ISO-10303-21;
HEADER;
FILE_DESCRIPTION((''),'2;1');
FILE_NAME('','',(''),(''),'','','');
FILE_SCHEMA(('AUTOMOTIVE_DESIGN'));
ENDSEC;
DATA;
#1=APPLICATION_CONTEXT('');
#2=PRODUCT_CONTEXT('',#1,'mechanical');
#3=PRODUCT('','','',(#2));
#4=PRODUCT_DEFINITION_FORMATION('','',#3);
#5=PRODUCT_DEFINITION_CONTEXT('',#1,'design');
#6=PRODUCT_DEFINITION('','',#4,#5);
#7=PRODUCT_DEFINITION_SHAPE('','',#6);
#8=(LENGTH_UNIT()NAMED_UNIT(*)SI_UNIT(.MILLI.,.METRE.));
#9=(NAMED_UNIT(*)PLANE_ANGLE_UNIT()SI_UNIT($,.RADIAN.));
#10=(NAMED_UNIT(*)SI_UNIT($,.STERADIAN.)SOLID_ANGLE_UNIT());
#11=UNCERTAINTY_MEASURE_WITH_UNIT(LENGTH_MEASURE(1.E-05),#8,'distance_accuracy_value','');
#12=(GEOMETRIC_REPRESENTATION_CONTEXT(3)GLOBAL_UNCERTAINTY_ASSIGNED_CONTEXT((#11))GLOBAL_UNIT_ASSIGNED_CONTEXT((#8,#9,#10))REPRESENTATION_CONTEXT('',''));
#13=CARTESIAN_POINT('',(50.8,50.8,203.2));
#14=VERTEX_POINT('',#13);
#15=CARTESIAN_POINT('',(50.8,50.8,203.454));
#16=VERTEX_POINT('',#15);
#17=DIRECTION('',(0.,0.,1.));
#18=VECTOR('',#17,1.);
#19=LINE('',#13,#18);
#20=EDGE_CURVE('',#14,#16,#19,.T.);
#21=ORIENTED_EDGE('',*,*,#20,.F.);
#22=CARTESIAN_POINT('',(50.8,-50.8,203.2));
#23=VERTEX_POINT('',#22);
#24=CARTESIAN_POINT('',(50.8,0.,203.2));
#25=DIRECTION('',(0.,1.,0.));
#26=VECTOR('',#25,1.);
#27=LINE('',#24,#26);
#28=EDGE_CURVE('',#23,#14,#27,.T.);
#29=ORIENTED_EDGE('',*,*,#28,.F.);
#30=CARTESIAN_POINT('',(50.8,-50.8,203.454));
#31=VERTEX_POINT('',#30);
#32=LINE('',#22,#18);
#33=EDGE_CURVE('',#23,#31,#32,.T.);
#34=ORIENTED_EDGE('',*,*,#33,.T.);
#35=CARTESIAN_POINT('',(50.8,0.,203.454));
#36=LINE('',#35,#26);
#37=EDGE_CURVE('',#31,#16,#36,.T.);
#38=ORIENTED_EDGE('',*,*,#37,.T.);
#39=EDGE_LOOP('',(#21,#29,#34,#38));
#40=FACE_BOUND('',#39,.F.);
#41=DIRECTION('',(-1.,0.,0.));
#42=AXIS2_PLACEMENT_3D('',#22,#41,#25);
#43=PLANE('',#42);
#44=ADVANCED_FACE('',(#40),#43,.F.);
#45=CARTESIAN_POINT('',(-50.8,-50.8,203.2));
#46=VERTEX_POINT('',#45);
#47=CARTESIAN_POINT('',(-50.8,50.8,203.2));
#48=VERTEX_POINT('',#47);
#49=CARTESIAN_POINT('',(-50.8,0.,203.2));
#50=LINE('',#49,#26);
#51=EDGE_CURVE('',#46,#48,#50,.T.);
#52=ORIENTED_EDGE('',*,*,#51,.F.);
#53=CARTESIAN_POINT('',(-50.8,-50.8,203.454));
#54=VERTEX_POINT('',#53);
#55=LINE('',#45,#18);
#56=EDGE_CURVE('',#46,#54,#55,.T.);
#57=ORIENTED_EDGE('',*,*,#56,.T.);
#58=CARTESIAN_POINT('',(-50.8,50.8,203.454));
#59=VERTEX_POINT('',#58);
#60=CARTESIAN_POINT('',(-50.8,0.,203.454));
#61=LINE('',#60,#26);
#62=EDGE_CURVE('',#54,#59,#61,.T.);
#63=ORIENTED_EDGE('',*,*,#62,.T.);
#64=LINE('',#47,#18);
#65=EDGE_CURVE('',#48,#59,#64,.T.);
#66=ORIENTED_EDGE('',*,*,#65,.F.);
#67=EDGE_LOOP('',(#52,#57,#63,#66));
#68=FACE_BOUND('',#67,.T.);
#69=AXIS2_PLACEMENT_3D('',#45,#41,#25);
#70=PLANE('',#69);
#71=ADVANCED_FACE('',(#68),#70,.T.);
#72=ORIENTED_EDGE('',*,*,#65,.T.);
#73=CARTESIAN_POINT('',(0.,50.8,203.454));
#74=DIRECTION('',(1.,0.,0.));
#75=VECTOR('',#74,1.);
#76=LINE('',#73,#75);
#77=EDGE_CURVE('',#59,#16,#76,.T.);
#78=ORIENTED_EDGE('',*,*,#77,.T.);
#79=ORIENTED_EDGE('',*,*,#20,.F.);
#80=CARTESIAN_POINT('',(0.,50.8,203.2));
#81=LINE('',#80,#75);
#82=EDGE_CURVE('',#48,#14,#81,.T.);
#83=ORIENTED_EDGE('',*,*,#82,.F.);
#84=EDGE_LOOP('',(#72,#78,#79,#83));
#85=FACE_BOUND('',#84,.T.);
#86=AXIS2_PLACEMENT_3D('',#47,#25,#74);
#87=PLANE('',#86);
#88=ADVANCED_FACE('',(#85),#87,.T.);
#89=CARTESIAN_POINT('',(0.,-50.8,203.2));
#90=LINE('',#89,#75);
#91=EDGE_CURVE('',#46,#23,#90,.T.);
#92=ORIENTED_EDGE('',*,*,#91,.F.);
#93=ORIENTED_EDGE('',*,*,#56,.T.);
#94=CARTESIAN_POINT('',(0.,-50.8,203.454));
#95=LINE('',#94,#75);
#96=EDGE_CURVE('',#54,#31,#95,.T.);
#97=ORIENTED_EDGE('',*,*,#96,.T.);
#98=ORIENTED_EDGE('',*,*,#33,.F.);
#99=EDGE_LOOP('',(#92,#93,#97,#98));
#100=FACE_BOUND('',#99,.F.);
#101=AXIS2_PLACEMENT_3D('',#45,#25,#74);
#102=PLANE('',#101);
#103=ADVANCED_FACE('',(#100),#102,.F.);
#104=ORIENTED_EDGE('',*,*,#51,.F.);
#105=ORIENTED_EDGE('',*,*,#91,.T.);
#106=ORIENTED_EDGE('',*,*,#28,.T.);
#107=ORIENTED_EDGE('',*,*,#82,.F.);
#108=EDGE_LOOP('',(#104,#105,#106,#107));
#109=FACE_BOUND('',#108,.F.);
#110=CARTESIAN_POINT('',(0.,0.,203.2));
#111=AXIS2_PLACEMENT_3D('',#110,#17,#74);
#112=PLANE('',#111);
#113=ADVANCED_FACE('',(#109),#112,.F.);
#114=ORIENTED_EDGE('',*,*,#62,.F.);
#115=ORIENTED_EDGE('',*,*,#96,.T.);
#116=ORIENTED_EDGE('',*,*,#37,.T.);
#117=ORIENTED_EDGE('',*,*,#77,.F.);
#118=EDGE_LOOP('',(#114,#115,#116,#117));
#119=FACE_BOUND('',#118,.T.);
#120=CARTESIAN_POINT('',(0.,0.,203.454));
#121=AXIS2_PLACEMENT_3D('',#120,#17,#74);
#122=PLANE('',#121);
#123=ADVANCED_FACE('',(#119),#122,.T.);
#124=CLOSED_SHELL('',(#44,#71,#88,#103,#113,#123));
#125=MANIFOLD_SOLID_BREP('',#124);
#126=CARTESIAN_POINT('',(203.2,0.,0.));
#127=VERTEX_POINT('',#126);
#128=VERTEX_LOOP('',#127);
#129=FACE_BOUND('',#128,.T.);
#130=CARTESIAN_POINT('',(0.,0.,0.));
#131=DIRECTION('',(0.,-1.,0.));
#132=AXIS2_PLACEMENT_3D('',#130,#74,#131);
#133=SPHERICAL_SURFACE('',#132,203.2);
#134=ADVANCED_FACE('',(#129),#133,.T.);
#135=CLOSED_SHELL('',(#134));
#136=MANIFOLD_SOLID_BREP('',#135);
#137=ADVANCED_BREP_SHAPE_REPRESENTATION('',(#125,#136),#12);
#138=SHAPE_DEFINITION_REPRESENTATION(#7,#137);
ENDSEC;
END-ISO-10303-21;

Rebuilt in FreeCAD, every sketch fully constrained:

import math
import FreeCAD as App
import Part
import Sketcher

V = App.Vector
Q = App.Units.Quantity

doc = App.newDocument("Part")
body = doc.addObject("PartDesign::Body", "Body")

# Sketch on XY plane
sketch1 = body.newObject("Sketcher::SketchObject", "Sketch")
sketch1.AttachmentSupport = (doc.getObject("XY_Plane"), [""])
sketch1.MapMode = "FlatFace"
sketch1.addGeometry([
    Part.ArcOfCircle(Part.Circle(V(0, 0, 0), V(0, 0, 1), 203), math.radians(180), math.radians(360)),
    Part.LineSegment(V(203, 0, 0), V(-203, 0, 0)),
], False)
sketch1.addConstraint([
    Sketcher.Constraint("Coincident", 0, 1, 1, 2),
    Sketcher.Constraint("Coincident", 1, 1, 0, 2),
    Sketcher.Constraint("Horizontal", 1),
    Sketcher.Constraint("Coincident", 0, 3, -1, 1),
    Sketcher.Constraint("PointOnObject", 0, 1, -1),
    Sketcher.Constraint("Radius", 0, Q("8 in")),
])
revolution = body.newObject("PartDesign::Revolution", "Revolution")
revolution.Profile = sketch1
revolution.ReferenceAxis = (sketch1, ["H_Axis"])
revolution.Angle = 360
body2 = doc.addObject("PartDesign::Body", "Body001")

# Sketch on XY plane
sketch2 = body2.newObject("Sketcher::SketchObject", "Sketch001")
sketch2.AttachmentSupport = (doc.getObject("XY_Plane001"), [""])
sketch2.MapMode = "FlatFace"
sketch2.AttachmentOffset = App.Placement(V(0, 0, 8 * 25.4), App.Rotation())
sketch2.addGeometry([
    Part.LineSegment(V(-51, 51, 0), V(-51, -51, 0)),
    Part.LineSegment(V(-51, -51, 0), V(51, -51, 0)),
    Part.LineSegment(V(51, -51, 0), V(51, 51, 0)),
    Part.LineSegment(V(51, 51, 0), V(-51, 51, 0)),
], False)
sketch2.addConstraint([
    Sketcher.Constraint("Coincident", 0, 2, 1, 1),
    Sketcher.Constraint("Coincident", 1, 2, 2, 1),
    Sketcher.Constraint("Coincident", 2, 2, 3, 1),
    Sketcher.Constraint("Coincident", 3, 2, 0, 1),
    Sketcher.Constraint("Vertical", 0),
    Sketcher.Constraint("Horizontal", 1),
    Sketcher.Constraint("Vertical", 2),
    Sketcher.Constraint("Horizontal", 3),
    Sketcher.Constraint("Symmetric", 0, 2, 2, 2, -1, 1),
    Sketcher.Constraint("Equal", 3, 0),
    Sketcher.Constraint("DistanceX", 1, 1, 1, 2, Q("4 in")),
])
pad1 = body2.newObject("PartDesign::Pad", "Pad")
pad1.Profile = sketch2
pad1.Length = Q("0.01 in")

doc.recompute()
